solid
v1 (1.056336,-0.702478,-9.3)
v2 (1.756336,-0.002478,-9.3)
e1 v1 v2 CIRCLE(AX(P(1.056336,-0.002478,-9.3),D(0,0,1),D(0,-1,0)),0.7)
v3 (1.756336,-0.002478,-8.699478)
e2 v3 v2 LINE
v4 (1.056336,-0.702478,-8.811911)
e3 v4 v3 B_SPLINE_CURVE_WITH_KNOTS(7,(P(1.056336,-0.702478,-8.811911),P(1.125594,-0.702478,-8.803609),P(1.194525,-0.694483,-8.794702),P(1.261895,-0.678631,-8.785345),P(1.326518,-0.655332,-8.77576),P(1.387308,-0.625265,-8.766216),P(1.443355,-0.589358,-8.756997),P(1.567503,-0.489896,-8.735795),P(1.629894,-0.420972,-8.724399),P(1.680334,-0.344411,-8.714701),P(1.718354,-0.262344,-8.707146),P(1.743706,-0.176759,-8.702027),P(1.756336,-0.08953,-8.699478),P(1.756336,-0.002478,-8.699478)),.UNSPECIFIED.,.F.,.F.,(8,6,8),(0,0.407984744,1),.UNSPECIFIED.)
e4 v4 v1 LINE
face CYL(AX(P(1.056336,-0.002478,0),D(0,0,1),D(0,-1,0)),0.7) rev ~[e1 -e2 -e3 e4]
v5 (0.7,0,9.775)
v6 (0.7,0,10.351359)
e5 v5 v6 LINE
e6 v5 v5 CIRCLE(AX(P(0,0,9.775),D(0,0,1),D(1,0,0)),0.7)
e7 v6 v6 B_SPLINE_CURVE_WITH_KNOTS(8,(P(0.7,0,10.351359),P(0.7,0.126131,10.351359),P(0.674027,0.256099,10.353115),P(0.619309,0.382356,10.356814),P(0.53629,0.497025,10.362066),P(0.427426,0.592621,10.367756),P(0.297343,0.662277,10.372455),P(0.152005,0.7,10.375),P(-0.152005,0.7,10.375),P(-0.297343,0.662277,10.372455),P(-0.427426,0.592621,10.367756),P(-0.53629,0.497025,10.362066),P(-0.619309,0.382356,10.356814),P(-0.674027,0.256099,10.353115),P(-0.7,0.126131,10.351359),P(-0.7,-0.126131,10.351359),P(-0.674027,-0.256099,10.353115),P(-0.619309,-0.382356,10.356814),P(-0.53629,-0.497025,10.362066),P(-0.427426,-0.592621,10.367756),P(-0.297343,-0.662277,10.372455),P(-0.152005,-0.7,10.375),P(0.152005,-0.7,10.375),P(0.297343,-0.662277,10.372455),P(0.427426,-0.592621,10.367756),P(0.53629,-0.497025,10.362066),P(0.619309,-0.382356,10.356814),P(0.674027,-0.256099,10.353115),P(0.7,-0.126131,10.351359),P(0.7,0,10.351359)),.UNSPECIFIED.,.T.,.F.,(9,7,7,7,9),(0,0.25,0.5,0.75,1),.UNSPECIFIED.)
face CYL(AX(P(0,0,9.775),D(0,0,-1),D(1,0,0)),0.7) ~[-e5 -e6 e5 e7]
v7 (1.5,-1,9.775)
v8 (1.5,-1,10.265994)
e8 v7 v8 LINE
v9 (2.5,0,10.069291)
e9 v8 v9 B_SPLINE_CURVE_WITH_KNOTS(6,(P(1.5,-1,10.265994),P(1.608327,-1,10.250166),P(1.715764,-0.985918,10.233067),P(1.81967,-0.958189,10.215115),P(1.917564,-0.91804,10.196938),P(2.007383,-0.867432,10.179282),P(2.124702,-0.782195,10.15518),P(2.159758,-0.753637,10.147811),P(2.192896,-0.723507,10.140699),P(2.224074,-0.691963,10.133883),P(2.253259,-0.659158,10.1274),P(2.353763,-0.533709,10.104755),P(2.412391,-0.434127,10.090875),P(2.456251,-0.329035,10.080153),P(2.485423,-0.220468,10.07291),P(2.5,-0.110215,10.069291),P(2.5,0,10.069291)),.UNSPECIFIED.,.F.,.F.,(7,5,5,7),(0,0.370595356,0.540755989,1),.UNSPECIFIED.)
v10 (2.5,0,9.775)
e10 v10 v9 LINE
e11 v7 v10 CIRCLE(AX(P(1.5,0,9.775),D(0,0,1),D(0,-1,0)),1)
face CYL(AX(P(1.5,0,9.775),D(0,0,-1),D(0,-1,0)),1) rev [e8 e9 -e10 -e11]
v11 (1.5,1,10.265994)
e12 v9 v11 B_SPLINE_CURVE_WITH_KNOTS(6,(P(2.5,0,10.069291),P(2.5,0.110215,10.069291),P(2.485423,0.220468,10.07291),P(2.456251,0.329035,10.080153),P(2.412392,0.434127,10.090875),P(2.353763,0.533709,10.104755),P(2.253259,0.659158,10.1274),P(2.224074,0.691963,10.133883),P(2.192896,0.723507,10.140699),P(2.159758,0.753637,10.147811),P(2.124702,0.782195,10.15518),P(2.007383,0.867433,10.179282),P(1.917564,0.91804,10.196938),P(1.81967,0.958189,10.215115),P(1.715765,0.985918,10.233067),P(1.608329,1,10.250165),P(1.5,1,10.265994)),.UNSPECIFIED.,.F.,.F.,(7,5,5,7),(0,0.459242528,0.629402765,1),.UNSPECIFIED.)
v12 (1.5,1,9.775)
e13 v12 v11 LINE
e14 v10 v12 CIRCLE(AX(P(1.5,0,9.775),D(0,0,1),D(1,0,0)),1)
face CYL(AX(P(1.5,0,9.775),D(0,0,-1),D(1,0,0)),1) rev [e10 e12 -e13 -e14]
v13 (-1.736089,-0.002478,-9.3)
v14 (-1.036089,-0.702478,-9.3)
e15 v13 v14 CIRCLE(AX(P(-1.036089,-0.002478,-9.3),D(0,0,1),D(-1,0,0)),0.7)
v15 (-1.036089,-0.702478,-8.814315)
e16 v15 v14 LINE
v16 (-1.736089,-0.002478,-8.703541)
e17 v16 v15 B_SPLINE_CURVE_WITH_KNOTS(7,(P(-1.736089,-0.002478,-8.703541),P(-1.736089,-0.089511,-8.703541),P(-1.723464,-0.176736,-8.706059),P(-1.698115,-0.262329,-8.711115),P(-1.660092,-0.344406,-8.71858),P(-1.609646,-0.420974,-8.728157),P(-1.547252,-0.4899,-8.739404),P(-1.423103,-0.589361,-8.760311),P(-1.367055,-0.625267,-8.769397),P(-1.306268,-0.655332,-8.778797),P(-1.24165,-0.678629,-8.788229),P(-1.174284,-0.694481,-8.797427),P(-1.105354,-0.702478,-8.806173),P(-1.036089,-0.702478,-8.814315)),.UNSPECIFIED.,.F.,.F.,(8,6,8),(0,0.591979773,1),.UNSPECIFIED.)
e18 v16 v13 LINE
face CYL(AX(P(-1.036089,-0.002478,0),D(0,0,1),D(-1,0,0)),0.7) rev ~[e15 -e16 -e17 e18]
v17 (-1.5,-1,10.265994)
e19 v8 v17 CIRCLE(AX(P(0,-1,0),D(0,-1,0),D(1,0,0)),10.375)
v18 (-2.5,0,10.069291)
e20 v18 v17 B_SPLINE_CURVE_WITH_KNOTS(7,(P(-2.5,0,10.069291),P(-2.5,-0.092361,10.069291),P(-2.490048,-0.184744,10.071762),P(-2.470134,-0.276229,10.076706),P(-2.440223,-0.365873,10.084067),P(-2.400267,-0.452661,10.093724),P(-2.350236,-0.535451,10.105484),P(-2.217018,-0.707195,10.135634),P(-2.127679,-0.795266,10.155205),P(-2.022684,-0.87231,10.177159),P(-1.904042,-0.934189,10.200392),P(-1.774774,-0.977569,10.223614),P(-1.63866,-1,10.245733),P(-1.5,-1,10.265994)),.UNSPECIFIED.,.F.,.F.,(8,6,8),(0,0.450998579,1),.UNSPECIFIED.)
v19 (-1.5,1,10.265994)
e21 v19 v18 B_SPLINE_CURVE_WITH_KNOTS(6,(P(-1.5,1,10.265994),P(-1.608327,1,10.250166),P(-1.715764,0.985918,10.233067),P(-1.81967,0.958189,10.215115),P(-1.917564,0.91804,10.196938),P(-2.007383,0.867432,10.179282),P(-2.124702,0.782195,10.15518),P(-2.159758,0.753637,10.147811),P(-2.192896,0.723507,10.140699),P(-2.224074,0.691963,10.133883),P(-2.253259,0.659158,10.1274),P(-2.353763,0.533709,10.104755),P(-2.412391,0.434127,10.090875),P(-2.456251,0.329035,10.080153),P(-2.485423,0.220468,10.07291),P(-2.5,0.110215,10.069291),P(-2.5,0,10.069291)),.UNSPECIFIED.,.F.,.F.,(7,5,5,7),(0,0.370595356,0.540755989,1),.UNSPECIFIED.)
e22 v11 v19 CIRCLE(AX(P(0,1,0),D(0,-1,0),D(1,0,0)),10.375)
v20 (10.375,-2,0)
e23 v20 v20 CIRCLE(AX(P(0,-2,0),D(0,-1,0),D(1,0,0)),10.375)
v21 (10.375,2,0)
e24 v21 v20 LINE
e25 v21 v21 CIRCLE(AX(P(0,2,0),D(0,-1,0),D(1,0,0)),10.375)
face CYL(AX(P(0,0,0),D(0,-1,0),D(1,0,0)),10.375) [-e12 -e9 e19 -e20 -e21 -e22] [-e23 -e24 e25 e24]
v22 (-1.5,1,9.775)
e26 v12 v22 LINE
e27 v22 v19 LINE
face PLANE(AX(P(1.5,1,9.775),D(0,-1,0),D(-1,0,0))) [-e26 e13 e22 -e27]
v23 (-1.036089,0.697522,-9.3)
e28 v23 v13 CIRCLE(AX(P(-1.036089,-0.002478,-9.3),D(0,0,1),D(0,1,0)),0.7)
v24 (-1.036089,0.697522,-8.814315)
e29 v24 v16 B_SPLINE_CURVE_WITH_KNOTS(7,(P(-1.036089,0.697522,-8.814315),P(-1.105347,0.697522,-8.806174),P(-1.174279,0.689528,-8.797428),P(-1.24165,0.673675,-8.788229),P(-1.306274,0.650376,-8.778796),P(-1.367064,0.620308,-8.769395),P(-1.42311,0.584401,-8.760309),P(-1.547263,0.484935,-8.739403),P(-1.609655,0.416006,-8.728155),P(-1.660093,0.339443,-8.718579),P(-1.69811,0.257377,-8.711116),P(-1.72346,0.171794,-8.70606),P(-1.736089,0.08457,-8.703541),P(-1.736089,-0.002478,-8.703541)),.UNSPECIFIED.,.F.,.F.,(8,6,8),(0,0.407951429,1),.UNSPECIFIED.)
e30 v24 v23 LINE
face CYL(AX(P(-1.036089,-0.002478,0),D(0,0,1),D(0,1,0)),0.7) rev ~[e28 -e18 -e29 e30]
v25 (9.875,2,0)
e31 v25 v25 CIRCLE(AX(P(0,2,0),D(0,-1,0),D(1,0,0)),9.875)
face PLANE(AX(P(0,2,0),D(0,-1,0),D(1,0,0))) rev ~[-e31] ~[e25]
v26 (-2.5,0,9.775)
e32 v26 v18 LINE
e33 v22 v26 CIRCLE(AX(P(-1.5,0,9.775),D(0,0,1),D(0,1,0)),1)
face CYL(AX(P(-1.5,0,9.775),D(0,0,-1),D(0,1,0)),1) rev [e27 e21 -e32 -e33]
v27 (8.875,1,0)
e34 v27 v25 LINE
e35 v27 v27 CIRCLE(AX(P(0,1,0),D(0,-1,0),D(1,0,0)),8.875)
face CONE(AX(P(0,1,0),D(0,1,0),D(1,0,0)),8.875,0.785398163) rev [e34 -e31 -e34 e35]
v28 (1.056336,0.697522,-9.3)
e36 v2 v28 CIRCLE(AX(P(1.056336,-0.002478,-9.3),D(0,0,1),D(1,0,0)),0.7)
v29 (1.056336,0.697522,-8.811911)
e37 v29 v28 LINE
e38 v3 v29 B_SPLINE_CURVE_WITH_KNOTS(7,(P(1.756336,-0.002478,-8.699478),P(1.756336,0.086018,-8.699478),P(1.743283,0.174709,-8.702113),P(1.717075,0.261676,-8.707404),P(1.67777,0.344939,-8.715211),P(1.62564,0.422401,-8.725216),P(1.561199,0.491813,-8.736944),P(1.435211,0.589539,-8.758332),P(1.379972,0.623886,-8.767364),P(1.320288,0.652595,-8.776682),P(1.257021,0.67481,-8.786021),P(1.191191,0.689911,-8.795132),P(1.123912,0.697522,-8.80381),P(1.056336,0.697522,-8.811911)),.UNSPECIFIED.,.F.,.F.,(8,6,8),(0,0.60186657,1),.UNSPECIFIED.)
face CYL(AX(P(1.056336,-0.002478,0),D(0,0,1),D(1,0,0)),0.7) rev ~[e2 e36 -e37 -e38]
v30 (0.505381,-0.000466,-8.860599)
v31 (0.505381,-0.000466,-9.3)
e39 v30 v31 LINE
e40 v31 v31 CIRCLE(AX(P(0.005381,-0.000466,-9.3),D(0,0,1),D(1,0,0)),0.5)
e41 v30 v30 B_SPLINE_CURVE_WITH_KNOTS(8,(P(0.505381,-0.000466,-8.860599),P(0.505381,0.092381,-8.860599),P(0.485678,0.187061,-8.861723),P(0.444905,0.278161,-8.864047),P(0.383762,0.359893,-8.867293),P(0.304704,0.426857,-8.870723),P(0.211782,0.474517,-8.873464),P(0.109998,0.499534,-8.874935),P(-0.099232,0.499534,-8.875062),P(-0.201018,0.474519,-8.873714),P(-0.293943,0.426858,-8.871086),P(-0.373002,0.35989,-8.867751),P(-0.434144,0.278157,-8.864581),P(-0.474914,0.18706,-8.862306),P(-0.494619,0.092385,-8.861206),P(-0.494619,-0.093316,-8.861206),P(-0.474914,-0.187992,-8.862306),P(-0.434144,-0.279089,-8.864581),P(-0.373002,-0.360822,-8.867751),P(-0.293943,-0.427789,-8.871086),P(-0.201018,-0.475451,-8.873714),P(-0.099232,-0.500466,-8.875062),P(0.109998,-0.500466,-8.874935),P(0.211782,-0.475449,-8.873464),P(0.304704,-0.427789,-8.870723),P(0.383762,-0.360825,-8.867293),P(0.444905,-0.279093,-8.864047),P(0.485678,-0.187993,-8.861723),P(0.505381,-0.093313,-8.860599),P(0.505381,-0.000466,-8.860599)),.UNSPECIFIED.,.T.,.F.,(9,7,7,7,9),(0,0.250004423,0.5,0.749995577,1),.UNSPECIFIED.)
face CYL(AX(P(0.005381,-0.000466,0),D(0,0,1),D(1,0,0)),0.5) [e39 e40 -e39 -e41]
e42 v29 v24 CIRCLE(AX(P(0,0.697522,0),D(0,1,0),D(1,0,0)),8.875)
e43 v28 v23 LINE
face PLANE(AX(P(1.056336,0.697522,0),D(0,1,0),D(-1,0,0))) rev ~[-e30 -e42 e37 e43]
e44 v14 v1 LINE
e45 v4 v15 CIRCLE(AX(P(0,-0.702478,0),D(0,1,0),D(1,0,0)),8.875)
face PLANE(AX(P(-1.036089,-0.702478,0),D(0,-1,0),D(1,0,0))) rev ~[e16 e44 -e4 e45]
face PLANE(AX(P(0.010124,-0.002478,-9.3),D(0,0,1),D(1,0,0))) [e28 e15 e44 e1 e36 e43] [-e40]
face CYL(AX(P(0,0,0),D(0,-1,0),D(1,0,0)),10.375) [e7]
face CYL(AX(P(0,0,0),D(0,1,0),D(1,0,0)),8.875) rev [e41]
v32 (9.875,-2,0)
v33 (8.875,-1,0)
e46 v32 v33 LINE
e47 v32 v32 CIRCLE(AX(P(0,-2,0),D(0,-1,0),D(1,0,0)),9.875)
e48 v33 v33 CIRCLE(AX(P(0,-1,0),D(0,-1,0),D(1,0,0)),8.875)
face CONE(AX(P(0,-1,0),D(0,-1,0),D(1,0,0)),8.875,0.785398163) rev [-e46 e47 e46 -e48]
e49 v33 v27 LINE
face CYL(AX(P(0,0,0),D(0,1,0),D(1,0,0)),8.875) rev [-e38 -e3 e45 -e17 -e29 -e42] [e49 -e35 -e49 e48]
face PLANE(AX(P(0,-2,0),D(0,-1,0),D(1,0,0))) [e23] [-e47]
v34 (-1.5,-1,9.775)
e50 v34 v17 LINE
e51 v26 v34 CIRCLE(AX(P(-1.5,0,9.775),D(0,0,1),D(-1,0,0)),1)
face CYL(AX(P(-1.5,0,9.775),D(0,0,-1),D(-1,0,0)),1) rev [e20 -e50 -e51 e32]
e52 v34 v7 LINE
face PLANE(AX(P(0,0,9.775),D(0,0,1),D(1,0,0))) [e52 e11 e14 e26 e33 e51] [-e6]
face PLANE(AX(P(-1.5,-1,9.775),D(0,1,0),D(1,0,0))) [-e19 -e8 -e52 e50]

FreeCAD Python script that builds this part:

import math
import FreeCAD as App
import Part
import Sketcher

V = App.Vector


def edges_at(feature, points):
    """Names of the edges that pass closest to the given points."""
    edges = feature.Shape.Edges
    near = lambda p: min(range(len(edges)), key=lambda i: edges[i].distToShape(Part.Vertex(*p))[0])
    return sorted({f"Edge{near(p) + 1}" for p in points})

doc = App.newDocument("Part")
body = doc.addObject("PartDesign::Body", "Body")

sketch1 = body.newObject("Sketcher::SketchObject", "Sketch")
sketch1.AttachmentSupport = (doc.getObject("XZ_Plane"), [""])
sketch1.MapMode = "FlatFace"
sketch1.addGeometry(Part.Circle(V(0, 0, 0), V(0, 0, 1), 10.375), False)
sketch1.addGeometry(Part.Circle(V(0, 0, 0), V(0, 0, 1), 8.875), False)
sketch1.addConstraint(Sketcher.Constraint("Coincident", 0, 3, -1, 1))
sketch1.addConstraint(Sketcher.Constraint("Coincident", 1, 3, -1, 1))
sketch1.addConstraint(Sketcher.Constraint("Diameter", 0, 20.75))
sketch1.addConstraint(Sketcher.Constraint("Diameter", 1, 17.75))
pad1 = body.newObject("PartDesign::Pad", "Pad")
pad1.Profile = sketch1
pad1.Type = "TwoLengths"
pad1.Length = 2
pad1.Length2 = 2
doc.recompute()

chamfer = body.newObject("PartDesign::Chamfer", "Chamfer")
chamfer.Base = (pad1, edges_at(pad1, [(-8.875, -2, 0), (-8.875, 2, 0)]))
chamfer.Size = 1

sketch2 = body.newObject("Sketcher::SketchObject", "Sketch001")
sketch2.AttachmentSupport = (doc.getObject("XY_Plane"), [""])
sketch2.MapMode = "FlatFace"
sketch2.AttachmentOffset = App.Placement(V(0, 0, 9.775), App.Rotation())
sketch2.addGeometry(Part.LineSegment(V(-1.5, -1, 0), V(1.5, -1, 0)), False)
sketch2.addGeometry(Part.ArcOfCircle(Part.Circle(V(1.5, 0, 0), V(0, 0, 1), 1), math.radians(-90), math.radians(0)), False)
sketch2.addGeometry(Part.ArcOfCircle(Part.Circle(V(1.5, 0, 0), V(0, 0, 1), 1), math.radians(0), math.radians(90)), False)
sketch2.addGeometry(Part.LineSegment(V(1.5, 1, 0), V(-1.5, 1, 0)), False)
sketch2.addGeometry(Part.ArcOfCircle(Part.Circle(V(-1.5, 0, 0), V(0, 0, 1), 1), math.radians(90), math.radians(180)), False)
sketch2.addGeometry(Part.ArcOfCircle(Part.Circle(V(-1.5, 0, 0), V(0, 0, 1), 1), math.radians(180), math.radians(270)), False)
sketch2.addGeometry(Part.Circle(V(0, 0, 0), V(0, 0, 1), 0.7), False)
sketch2.addConstraint(Sketcher.Constraint("Tangent", 0, 2, 1, 1))
sketch2.addConstraint(Sketcher.Constraint("Tangent", 1, 2, 2, 1))
sketch2.addConstraint(Sketcher.Constraint("Tangent", 2, 2, 3, 1))
sketch2.addConstraint(Sketcher.Constraint("Tangent", 3, 2, 4, 1))
sketch2.addConstraint(Sketcher.Constraint("Tangent", 4, 2, 5, 1))
sketch2.addConstraint(Sketcher.Constraint("Tangent", 5, 2, 0, 1))
sketch2.addConstraint(Sketcher.Constraint("Horizontal", 0))
sketch2.addConstraint(Sketcher.Constraint("Horizontal", 3))
sketch2.addConstraint(Sketcher.Constraint("Coincident", 6, 3, -1, 1))
sketch2.addConstraint(Sketcher.Constraint("Equal", 1, 2))
sketch2.addConstraint(Sketcher.Constraint("Equal", 2, 4))
sketch2.addConstraint(Sketcher.Constraint("Symmetric", 1, 3, 4, 3, -1, 1))
sketch2.addConstraint(Sketcher.Constraint("PointOnObject", 1, 2, -1))
sketch2.addConstraint(Sketcher.Constraint("PointOnObject", 4, 2, -1))
sketch2.addConstraint(Sketcher.Constraint("Radius", 1, 1.0))
sketch2.addConstraint(Sketcher.Constraint("Diameter", 6, 1.4))
sketch2.addConstraint(Sketcher.Constraint("DistanceX", 0, 1, 0, 2, 3.0))
pocket1 = body.newObject("PartDesign::Pocket", "Pocket")
pocket1.Profile = sketch2
pocket1.Length = 15.225
pocket1.Reversed = True

sketch3 = body.newObject("Sketcher::SketchObject", "Sketch002")
sketch3.AttachmentSupport = (doc.getObject("XY_Plane"), [""])
sketch3.MapMode = "FlatFace"
sketch3.addGeometry(Part.ArcOfCircle(Part.Circle(V(1.026336, -2.237478, 0), V(0, 0, 1), 0.7), math.radians(0), math.radians(90)), False)
sketch3.addGeometry(Part.LineSegment(V(1.026336, -1.537478, 0), V(-1.066089, -1.537478, 0)), False)
sketch3.addGeometry(Part.ArcOfCircle(Part.Circle(V(-1.066089, -2.237478, 0), V(0, 0, 1), 0.7), math.radians(90), math.radians(180)), False)
sketch3.addGeometry(Part.ArcOfCircle(Part.Circle(V(-1.066089, -2.237478, 0), V(0, 0, 1), 0.7), math.radians(180), math.radians(270)), False)
sketch3.addGeometry(Part.LineSegment(V(-1.066089, -2.937478, 0), V(1.026336, -2.937478, 0)), False)
sketch3.addGeometry(Part.ArcOfCircle(Part.Circle(V(1.026336, -2.237478, 0), V(0, 0, 1), 0.7), math.radians(-90), math.radians(0)), False)
sketch3.addGeometry(Part.ArcOfCircle(Part.Circle(V(1.056336, -0.002478, 0), V(0, 0, 1), 0.7), math.radians(0), math.radians(90)), False)
sketch3.addGeometry(Part.LineSegment(V(1.056336, 0.697522, 0), V(-1.036089, 0.697522, 0)), False)
sketch3.addGeometry(Part.ArcOfCircle(Part.Circle(V(-1.036089, -0.002478, 0), V(0, 0, 1), 0.7), math.radians(90), math.radians(180)), False)
sketch3.addGeometry(Part.ArcOfCircle(Part.Circle(V(-1.036089, -0.002478, 0), V(0, 0, 1), 0.7), math.radians(180), math.radians(270)), False)
sketch3.addGeometry(Part.LineSegment(V(-1.036089, -0.702478, 0), V(1.056336, -0.702478, 0)), False)
sketch3.addGeometry(Part.ArcOfCircle(Part.Circle(V(1.056336, -0.002478, 0), V(0, 0, 1), 0.7), math.radians(-90), math.radians(0)), False)
sketch3.addGeometry(Part.Circle(V(0.005381, -0.000466, 0), V(0, 0, 1), 0.5), False)
sketch3.addGeometry(Part.ArcOfCircle(Part.Circle(V(1.026336, 2.268972, 0), V(0, 0, 1), 0.7), math.radians(0), math.radians(90)), False)
sketch3.addGeometry(Part.LineSegment(V(1.026336, 2.968972, 0), V(-1.066089, 2.968972, 0)), False)
sketch3.addGeometry(Part.ArcOfCircle(Part.Circle(V(-1.066089, 2.268972, 0), V(0, 0, 1), 0.7), math.radians(90), math.radians(180)), False)
sketch3.addGeometry(Part.ArcOfCircle(Part.Circle(V(-1.066089, 2.268972, 0), V(0, 0, 1), 0.7), math.radians(180), math.radians(270)), False)
sketch3.addGeometry(Part.LineSegment(V(-1.066089, 1.568972, 0), V(1.026336, 1.568972, 0)), False)
sketch3.addGeometry(Part.ArcOfCircle(Part.Circle(V(1.026336, 2.268972, 0), V(0, 0, 1), 0.7), math.radians(-90), math.radians(0)), False)
sketch3.addConstraint(Sketcher.Constraint("Tangent", 0, 2, 1, 1))
sketch3.addConstraint(Sketcher.Constraint("Tangent", 1, 2, 2, 1))
sketch3.addConstraint(Sketcher.Constraint("Tangent", 2, 2, 3, 1))
sketch3.addConstraint(Sketcher.Constraint("Tangent", 3, 2, 4, 1))
sketch3.addConstraint(Sketcher.Constraint("Tangent", 4, 2, 5, 1))
sketch3.addConstraint(Sketcher.Constraint("Tangent", 5, 2, 0, 1))
sketch3.addConstraint(Sketcher.Constraint("Tangent", 6, 2, 7, 1))
sketch3.addConstraint(Sketcher.Constraint("Tangent", 7, 2, 8, 1))
sketch3.addConstraint(Sketcher.Constraint("Tangent", 8, 2, 9, 1))
sketch3.addConstraint(Sketcher.Constraint("Tangent", 9, 2, 10, 1))
sketch3.addConstraint(Sketcher.Constraint("Tangent", 10, 2, 11, 1))
sketch3.addConstraint(Sketcher.Constraint("Tangent", 11, 2, 6, 1))
sketch3.addConstraint(Sketcher.Constraint("Tangent", 13, 2, 14, 1))
sketch3.addConstraint(Sketcher.Constraint("Tangent", 14, 2, 15, 1))
sketch3.addConstraint(Sketcher.Constraint("Tangent", 15, 2, 16, 1))
sketch3.addConstraint(Sketcher.Constraint("Tangent", 16, 2, 17, 1))
sketch3.addConstraint(Sketcher.Constraint("Tangent", 17, 2, 18, 1))
sketch3.addConstraint(Sketcher.Constraint("Tangent", 18, 2, 13, 1))
sketch3.addConstraint(Sketcher.Constraint("Horizontal", 1))
sketch3.addConstraint(Sketcher.Constraint("Horizontal", 4))
sketch3.addConstraint(Sketcher.Constraint("Horizontal", 7))
sketch3.addConstraint(Sketcher.Constraint("Horizontal", 10))
sketch3.addConstraint(Sketcher.Constraint("Horizontal", 14))
sketch3.addConstraint(Sketcher.Constraint("Horizontal", 17))
sketch3.addConstraint(Sketcher.Constraint("Equal", 0, 2))
sketch3.addConstraint(Sketcher.Constraint("Equal", 2, 3))
sketch3.addConstraint(Sketcher.Constraint("Equal", 5, 6))
sketch3.addConstraint(Sketcher.Constraint("Equal", 6, 8))
sketch3.addConstraint(Sketcher.Constraint("Equal", 8, 9))
sketch3.addConstraint(Sketcher.Constraint("Equal", 11, 13))
sketch3.addConstraint(Sketcher.Constraint("Equal", 13, 15))
sketch3.addConstraint(Sketcher.Constraint("Equal", 15, 16))
sketch3.addConstraint(Sketcher.Constraint("Horizontal", 5, 3, 2, 2))
sketch3.addConstraint(Sketcher.Constraint("Horizontal", 2, 2, 5, 2))
sketch3.addConstraint(Sketcher.Constraint("Horizontal", 11, 3, 8, 2))
sketch3.addConstraint(Sketcher.Constraint("Horizontal", 8, 2, 11, 2))
sketch3.addConstraint(Sketcher.Constraint("Horizontal", 18, 3, 15, 2))
sketch3.addConstraint(Sketcher.Constraint("Horizontal", 15, 2, 18, 2))
sketch3.addConstraint(Sketcher.Constraint("Vertical", 5, 3, 13, 3))
sketch3.addConstraint(Sketcher.Constraint("Vertical", 3, 3, 15, 3))
sketch3.addConstraint(Sketcher.Constraint("Equal", 4, 7))
sketch3.addConstraint(Sketcher.Constraint("Diameter", 12, 1.0))
sketch3.addConstraint(Sketcher.Constraint("Radius", 0, 0.7))
sketch3.addConstraint(Sketcher.Constraint("DistanceX", 0, 3, 6, 3, 0.03))
sketch3.addConstraint(Sketcher.Constraint("DistanceY", 0, 3, 6, 3, 2.235))
sketch3.addConstraint(Sketcher.Constraint("DistanceX", 1, 2, 1, 1, 2.092425))
sketch3.addConstraint(Sketcher.Constraint("DistanceX", 2, 3, -1, 1, 1.066089))
sketch3.addConstraint(Sketcher.Constraint("DistanceX", -1, 1, 12, 3, 0.005381))
sketch3.addConstraint(Sketcher.Constraint("DistanceY", -1, 1, 13, 3, 2.268972))
sketch3.addConstraint(Sketcher.Constraint("DistanceY", 8, 3, 12, 3, 0.002012))
sketch3.addConstraint(Sketcher.Constraint("DistanceY", 6, 3, 13, 3, 2.271449))
pocket2 = body.newObject("PartDesign::Pocket", "Pocket001")
pocket2.Profile = sketch3
pocket2.Length = 9.3

doc.recompute()
